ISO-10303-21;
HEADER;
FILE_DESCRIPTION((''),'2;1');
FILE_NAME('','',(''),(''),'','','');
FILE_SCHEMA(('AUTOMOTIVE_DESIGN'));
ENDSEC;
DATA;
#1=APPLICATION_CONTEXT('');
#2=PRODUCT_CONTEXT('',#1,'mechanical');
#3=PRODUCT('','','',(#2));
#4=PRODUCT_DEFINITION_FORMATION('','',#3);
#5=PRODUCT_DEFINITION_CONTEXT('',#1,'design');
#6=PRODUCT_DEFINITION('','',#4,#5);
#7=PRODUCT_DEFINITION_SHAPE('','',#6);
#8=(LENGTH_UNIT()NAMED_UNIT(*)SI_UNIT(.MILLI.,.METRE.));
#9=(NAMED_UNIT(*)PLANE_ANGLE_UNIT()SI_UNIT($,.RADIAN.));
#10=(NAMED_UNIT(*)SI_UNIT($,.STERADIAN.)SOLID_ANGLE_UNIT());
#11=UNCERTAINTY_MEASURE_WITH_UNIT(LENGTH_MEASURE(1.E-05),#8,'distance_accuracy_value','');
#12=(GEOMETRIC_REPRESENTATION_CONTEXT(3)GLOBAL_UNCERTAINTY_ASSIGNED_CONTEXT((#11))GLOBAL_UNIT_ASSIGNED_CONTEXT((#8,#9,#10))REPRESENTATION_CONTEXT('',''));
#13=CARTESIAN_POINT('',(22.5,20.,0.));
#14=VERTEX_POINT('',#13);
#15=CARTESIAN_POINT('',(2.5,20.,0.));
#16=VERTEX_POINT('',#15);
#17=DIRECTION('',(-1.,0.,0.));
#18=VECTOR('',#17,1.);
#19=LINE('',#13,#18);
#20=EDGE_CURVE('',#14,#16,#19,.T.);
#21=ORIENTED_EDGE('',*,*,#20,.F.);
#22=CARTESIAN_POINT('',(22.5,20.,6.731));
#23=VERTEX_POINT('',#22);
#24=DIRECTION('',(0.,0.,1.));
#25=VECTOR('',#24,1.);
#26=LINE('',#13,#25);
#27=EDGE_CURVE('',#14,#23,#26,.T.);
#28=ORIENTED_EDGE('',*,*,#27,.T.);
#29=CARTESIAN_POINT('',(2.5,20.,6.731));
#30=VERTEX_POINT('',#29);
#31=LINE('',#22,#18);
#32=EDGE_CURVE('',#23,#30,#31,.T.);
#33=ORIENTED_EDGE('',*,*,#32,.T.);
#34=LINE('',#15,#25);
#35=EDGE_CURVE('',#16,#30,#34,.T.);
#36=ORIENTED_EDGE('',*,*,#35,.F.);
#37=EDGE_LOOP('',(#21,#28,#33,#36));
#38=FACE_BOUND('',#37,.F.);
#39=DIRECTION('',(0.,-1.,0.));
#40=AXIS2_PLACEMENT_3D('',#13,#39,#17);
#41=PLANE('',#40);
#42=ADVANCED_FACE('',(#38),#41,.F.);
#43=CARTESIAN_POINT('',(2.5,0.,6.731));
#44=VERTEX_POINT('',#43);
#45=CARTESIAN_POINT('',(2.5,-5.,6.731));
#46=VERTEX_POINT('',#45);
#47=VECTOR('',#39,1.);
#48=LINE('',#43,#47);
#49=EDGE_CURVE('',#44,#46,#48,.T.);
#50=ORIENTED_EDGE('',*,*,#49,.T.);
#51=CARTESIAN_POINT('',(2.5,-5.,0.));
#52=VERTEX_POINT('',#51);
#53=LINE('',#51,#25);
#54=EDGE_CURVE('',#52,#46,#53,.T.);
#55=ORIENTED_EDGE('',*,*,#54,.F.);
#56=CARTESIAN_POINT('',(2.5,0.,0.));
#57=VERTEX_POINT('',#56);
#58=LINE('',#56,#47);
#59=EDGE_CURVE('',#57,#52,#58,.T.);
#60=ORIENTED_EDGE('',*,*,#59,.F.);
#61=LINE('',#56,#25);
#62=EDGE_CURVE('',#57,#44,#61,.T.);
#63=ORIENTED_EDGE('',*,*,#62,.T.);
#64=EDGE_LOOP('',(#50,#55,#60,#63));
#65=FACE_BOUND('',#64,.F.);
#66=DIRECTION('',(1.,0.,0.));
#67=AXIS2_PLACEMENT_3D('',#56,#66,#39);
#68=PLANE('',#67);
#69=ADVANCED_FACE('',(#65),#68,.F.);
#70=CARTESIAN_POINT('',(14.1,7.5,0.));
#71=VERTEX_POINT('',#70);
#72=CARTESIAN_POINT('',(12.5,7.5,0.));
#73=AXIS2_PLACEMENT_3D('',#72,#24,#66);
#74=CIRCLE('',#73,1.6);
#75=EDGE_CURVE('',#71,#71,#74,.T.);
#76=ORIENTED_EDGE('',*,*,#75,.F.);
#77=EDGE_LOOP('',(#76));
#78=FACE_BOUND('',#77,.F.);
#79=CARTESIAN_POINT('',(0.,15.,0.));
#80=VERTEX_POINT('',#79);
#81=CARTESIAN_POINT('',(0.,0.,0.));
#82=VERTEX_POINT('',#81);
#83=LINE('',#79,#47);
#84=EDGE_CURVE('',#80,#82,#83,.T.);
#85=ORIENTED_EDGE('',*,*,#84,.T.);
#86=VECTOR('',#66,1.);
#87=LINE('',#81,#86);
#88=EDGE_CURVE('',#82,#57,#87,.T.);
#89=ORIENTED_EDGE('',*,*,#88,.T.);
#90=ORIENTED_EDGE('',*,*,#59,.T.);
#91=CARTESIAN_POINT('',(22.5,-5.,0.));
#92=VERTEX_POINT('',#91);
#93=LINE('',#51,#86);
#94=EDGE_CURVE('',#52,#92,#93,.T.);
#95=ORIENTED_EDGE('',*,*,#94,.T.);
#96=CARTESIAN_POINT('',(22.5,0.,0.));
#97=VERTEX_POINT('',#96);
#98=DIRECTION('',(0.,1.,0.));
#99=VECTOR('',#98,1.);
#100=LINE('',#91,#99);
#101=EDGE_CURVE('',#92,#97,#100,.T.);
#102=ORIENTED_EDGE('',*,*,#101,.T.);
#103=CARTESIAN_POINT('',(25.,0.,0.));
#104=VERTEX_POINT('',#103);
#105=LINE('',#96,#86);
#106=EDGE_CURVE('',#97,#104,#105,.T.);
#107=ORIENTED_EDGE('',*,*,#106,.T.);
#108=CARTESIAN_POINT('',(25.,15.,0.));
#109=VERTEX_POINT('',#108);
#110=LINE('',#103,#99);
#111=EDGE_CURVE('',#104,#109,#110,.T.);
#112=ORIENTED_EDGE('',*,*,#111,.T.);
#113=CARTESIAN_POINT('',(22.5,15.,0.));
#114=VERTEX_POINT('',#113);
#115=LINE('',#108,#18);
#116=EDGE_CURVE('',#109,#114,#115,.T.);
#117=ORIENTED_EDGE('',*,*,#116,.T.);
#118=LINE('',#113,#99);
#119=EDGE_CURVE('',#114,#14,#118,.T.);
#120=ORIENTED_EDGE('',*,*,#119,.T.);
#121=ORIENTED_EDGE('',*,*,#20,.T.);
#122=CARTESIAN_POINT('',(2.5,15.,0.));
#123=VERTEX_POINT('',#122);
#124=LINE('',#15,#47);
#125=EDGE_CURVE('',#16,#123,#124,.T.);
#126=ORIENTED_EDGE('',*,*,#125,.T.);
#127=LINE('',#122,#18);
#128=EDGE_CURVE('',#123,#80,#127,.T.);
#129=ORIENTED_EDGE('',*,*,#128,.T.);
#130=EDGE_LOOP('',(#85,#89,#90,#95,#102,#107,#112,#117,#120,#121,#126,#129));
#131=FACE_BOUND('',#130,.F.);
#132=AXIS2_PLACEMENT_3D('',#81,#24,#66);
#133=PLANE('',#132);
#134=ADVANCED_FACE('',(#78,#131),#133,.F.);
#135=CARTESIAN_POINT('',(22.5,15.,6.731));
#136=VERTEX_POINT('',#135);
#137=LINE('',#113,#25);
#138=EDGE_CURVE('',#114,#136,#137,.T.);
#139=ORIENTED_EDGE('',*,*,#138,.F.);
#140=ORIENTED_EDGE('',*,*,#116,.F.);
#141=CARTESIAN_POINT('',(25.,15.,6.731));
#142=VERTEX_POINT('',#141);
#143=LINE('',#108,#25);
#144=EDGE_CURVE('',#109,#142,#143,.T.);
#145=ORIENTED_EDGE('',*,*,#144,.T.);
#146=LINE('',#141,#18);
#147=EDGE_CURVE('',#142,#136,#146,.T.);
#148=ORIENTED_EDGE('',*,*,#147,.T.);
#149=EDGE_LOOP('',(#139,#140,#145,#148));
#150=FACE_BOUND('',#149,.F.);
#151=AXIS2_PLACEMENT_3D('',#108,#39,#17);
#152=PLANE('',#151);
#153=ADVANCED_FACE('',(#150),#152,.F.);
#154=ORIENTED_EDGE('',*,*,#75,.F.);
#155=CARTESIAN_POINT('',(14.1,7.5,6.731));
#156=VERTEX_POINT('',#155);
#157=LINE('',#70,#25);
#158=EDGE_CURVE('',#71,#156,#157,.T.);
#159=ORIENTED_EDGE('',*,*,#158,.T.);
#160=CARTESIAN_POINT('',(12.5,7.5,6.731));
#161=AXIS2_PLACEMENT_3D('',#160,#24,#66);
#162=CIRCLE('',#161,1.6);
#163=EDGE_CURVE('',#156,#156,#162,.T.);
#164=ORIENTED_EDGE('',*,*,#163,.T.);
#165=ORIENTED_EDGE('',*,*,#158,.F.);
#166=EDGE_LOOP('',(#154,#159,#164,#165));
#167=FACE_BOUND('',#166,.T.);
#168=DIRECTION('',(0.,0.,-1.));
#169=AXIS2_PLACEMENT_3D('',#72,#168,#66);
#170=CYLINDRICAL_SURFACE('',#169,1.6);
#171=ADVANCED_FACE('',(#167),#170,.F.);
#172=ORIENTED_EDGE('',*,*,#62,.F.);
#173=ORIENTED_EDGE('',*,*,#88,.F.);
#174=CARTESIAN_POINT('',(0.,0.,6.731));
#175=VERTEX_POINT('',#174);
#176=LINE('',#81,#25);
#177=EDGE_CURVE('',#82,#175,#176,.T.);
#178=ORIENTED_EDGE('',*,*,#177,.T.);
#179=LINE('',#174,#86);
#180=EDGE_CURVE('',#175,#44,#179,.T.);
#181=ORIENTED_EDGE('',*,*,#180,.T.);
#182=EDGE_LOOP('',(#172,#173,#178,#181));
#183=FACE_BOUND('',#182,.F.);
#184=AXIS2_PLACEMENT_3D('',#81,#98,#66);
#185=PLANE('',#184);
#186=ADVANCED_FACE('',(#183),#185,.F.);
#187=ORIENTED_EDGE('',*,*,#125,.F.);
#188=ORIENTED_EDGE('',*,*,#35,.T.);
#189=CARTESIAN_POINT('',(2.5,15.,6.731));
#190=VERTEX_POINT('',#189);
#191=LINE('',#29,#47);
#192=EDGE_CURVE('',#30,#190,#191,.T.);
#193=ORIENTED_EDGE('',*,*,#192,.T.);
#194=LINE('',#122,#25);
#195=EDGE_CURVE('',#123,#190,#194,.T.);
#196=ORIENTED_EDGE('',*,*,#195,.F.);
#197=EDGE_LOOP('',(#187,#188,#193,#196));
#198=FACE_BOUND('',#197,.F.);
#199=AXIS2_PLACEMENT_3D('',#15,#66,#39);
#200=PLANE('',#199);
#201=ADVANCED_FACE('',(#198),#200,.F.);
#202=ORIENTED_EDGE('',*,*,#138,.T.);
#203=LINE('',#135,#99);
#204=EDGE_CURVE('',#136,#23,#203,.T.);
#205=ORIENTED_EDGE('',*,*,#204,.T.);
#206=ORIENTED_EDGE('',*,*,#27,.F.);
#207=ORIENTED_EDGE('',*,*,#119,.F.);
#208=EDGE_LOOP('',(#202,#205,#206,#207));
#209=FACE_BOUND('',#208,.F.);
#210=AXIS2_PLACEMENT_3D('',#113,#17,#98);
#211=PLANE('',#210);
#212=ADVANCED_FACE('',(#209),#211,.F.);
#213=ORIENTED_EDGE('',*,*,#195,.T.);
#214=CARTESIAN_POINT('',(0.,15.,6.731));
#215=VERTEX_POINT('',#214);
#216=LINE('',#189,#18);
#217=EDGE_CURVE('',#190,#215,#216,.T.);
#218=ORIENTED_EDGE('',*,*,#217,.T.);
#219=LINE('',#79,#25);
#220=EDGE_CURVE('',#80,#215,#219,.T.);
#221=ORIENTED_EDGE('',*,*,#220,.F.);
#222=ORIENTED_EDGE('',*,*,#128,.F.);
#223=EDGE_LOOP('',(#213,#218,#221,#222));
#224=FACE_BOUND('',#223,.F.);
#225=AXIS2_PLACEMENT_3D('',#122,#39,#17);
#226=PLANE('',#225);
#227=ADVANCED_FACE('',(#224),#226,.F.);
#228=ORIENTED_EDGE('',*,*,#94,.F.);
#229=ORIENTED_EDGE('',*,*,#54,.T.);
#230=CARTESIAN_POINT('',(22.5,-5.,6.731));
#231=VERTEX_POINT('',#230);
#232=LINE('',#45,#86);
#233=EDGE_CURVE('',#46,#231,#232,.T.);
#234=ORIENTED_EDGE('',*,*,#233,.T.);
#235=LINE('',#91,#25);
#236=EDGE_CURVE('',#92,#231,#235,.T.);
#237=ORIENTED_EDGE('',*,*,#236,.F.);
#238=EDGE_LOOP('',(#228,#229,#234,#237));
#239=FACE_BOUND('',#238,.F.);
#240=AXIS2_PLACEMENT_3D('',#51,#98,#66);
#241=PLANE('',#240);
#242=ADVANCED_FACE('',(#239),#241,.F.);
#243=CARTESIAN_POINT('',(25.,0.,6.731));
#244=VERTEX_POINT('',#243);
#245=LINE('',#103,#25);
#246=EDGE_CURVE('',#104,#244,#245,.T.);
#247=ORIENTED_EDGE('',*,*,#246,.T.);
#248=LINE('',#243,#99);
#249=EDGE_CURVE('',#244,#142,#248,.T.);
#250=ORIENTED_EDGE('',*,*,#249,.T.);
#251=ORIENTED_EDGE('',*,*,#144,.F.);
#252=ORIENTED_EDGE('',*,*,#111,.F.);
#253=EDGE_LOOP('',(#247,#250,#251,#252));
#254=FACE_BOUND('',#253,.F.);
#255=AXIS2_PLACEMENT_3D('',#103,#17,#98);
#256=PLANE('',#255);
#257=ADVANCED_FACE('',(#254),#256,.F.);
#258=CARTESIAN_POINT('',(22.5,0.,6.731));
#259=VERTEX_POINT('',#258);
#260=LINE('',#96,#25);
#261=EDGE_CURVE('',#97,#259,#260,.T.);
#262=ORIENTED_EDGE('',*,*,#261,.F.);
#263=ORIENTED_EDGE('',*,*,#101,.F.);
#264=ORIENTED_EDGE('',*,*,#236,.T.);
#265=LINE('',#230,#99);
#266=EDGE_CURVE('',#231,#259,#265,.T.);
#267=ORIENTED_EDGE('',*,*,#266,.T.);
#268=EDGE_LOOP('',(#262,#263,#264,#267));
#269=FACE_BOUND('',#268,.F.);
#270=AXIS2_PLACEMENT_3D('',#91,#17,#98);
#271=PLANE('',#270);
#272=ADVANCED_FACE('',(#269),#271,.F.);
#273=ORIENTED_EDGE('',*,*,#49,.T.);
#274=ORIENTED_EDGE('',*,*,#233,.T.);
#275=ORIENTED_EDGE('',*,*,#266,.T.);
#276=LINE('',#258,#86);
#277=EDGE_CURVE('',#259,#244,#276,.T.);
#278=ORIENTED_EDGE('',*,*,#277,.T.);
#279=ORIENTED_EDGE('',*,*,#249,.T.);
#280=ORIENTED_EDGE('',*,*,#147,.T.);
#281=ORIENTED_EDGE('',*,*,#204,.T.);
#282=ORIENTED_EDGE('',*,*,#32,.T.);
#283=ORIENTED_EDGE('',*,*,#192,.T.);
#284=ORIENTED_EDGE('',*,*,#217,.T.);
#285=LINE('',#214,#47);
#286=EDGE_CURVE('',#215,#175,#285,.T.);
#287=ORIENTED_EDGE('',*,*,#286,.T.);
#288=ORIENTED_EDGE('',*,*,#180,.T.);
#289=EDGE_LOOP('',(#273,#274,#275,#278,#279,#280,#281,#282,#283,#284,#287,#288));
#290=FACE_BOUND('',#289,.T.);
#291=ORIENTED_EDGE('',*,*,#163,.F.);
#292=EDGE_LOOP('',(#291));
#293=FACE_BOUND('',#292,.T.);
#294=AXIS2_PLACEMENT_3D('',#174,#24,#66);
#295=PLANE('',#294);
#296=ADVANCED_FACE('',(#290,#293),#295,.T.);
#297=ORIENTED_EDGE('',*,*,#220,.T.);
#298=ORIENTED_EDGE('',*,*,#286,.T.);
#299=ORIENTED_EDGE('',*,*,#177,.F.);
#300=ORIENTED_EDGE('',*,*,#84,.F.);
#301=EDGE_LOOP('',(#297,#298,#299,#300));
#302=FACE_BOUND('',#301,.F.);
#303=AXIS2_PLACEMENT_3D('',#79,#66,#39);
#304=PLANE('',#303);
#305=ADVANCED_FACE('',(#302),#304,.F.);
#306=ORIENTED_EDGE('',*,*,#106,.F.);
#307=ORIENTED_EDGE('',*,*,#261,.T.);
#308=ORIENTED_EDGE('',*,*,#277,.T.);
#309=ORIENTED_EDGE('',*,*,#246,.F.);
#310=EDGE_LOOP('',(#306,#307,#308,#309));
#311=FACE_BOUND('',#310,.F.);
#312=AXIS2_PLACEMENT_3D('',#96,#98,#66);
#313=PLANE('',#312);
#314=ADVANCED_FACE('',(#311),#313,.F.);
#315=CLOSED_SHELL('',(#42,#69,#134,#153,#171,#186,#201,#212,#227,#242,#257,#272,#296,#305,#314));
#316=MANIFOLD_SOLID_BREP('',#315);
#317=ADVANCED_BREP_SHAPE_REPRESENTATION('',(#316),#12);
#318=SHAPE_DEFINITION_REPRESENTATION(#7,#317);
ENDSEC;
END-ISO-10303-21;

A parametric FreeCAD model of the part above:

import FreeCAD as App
import Part
import Sketcher
from FreeCAD import Vector
Q = App.Units.Quantity

doc = App.newDocument("Part")
body = doc.addObject("PartDesign::Body", "Body")

# Sketch on XY plane
sketch1 = body.newObject("Sketcher::SketchObject", "Sketch")
sketch1.AttachmentSupport = (doc.getObject("XY_Plane"), [""])
sketch1.MapMode = "FlatFace"
sketch1.addGeometry(Part.LineSegment(Vector(0, 15, 0), Vector(0, 0, 0)), False)
sketch1.addGeometry(Part.LineSegment(Vector(0, 0, 0), Vector(2.5, 0, 0)), False)
sketch1.addGeometry(Part.LineSegment(Vector(2.5, 0, 0), Vector(2.5, -5, 0)), False)
sketch1.addGeometry(Part.LineSegment(Vector(2.5, -5, 0), Vector(22.5, -5, 0)), False)
sketch1.addGeometry(Part.LineSegment(Vector(22.5, -5, 0), Vector(22.5, 0, 0)), False)
sketch1.addGeometry(Part.LineSegment(Vector(22.5, 0, 0), Vector(25, 0, 0)), False)
sketch1.addGeometry(Part.LineSegment(Vector(25, 0, 0), Vector(25, 15, 0)), False)
sketch1.addGeometry(Part.LineSegment(Vector(25, 15, 0), Vector(22.5, 15, 0)), False)
sketch1.addGeometry(Part.LineSegment(Vector(22.5, 15, 0), Vector(22.5, 20, 0)), False)
sketch1.addGeometry(Part.LineSegment(Vector(22.5, 20, 0), Vector(2.5, 20, 0)), False)
sketch1.addGeometry(Part.LineSegment(Vector(2.5, 20, 0), Vector(2.5, 15, 0)), False)
sketch1.addGeometry(Part.LineSegment(Vector(2.5, 15, 0), Vector(0, 15, 0)), False)
sketch1.addGeometry(Part.Circle(Vector(12.5, 7.5, 0), Vector(0, 0, 1), 1.6), False)
sketch1.addConstraint(Sketcher.Constraint("Coincident", 0, 2, 1, 1))
sketch1.addConstraint(Sketcher.Constraint("Coincident", 1, 2, 2, 1))
sketch1.addConstraint(Sketcher.Constraint("Coincident", 2, 2, 3, 1))
sketch1.addConstraint(Sketcher.Constraint("Coincident", 3, 2, 4, 1))
sketch1.addConstraint(Sketcher.Constraint("Coincident", 4, 2, 5, 1))
sketch1.addConstraint(Sketcher.Constraint("Coincident", 5, 2, 6, 1))
sketch1.addConstraint(Sketcher.Constraint("Coincident", 6, 2, 7, 1))
sketch1.addConstraint(Sketcher.Constraint("Coincident", 7, 2, 8, 1))
sketch1.addConstraint(Sketcher.Constraint("Coincident", 8, 2, 9, 1))
sketch1.addConstraint(Sketcher.Constraint("Coincident", 9, 2, 10, 1))
sketch1.addConstraint(Sketcher.Constraint("Coincident", 10, 2, 11, 1))
sketch1.addConstraint(Sketcher.Constraint("Coincident", 11, 2, 0, 1))
sketch1.addConstraint(Sketcher.Constraint("Vertical", 0))
sketch1.addConstraint(Sketcher.Constraint("Horizontal", 1))
sketch1.addConstraint(Sketcher.Constraint("Vertical", 2))
sketch1.addConstraint(Sketcher.Constraint("Horizontal", 3))
sketch1.addConstraint(Sketcher.Constraint("Vertical", 4))
sketch1.addConstraint(Sketcher.Constraint("Horizontal", 5))
sketch1.addConstraint(Sketcher.Constraint("Vertical", 6))
sketch1.addConstraint(Sketcher.Constraint("Horizontal", 7))
sketch1.addConstraint(Sketcher.Constraint("Vertical", 8))
sketch1.addConstraint(Sketcher.Constraint("Horizontal", 9))
sketch1.addConstraint(Sketcher.Constraint("Vertical", 10))
sketch1.addConstraint(Sketcher.Constraint("Horizontal", 11))
sketch1.addConstraint(Sketcher.Constraint("Coincident", 0, 2, -1, 1))
sketch1.addConstraint(Sketcher.Constraint("PointOnObject", 4, 2, -1))
sketch1.addConstraint(Sketcher.Constraint("Horizontal", 7, 2, 10, 2))
sketch1.addConstraint(Sketcher.Constraint("Vertical", 4, 2, 7, 2))
sketch1.addConstraint(Sketcher.Constraint("Vertical", 2, 2, 9, 2))
sketch1.addConstraint(Sketcher.Constraint("Equal", 1, 5))
sketch1.addConstraint(Sketcher.Constraint("Equal", 4, 8))
sketch1.addConstraint(Sketcher.Constraint("Diameter", 12, Q("3.2 mm")))
sketch1.addConstraint(Sketcher.Constraint("DistanceX", 3, 1, 3, 2, Q("20 mm")))
sketch1.addConstraint(Sketcher.Constraint("DistanceY", 0, 2, 0, 1, Q("15 mm")))
sketch1.addConstraint(Sketcher.Constraint("DistanceY", 2, 2, 2, 1, Q("5 mm")))
sketch1.addConstraint(Sketcher.Constraint("DistanceX", -1, 1, 5, 2, Q("25 mm")))
sketch1.addConstraint(Sketcher.Constraint("DistanceX", 1, 2, 12, 3, Q("10 mm")))
sketch1.addConstraint(Sketcher.Constraint("DistanceY", -1, 1, 12, 3, Q("7.5 mm")))
pad1 = body.newObject("PartDesign::Pad", "Pad")
pad1.Profile = sketch1
pad1.Length = 6.731

doc.recompute()
